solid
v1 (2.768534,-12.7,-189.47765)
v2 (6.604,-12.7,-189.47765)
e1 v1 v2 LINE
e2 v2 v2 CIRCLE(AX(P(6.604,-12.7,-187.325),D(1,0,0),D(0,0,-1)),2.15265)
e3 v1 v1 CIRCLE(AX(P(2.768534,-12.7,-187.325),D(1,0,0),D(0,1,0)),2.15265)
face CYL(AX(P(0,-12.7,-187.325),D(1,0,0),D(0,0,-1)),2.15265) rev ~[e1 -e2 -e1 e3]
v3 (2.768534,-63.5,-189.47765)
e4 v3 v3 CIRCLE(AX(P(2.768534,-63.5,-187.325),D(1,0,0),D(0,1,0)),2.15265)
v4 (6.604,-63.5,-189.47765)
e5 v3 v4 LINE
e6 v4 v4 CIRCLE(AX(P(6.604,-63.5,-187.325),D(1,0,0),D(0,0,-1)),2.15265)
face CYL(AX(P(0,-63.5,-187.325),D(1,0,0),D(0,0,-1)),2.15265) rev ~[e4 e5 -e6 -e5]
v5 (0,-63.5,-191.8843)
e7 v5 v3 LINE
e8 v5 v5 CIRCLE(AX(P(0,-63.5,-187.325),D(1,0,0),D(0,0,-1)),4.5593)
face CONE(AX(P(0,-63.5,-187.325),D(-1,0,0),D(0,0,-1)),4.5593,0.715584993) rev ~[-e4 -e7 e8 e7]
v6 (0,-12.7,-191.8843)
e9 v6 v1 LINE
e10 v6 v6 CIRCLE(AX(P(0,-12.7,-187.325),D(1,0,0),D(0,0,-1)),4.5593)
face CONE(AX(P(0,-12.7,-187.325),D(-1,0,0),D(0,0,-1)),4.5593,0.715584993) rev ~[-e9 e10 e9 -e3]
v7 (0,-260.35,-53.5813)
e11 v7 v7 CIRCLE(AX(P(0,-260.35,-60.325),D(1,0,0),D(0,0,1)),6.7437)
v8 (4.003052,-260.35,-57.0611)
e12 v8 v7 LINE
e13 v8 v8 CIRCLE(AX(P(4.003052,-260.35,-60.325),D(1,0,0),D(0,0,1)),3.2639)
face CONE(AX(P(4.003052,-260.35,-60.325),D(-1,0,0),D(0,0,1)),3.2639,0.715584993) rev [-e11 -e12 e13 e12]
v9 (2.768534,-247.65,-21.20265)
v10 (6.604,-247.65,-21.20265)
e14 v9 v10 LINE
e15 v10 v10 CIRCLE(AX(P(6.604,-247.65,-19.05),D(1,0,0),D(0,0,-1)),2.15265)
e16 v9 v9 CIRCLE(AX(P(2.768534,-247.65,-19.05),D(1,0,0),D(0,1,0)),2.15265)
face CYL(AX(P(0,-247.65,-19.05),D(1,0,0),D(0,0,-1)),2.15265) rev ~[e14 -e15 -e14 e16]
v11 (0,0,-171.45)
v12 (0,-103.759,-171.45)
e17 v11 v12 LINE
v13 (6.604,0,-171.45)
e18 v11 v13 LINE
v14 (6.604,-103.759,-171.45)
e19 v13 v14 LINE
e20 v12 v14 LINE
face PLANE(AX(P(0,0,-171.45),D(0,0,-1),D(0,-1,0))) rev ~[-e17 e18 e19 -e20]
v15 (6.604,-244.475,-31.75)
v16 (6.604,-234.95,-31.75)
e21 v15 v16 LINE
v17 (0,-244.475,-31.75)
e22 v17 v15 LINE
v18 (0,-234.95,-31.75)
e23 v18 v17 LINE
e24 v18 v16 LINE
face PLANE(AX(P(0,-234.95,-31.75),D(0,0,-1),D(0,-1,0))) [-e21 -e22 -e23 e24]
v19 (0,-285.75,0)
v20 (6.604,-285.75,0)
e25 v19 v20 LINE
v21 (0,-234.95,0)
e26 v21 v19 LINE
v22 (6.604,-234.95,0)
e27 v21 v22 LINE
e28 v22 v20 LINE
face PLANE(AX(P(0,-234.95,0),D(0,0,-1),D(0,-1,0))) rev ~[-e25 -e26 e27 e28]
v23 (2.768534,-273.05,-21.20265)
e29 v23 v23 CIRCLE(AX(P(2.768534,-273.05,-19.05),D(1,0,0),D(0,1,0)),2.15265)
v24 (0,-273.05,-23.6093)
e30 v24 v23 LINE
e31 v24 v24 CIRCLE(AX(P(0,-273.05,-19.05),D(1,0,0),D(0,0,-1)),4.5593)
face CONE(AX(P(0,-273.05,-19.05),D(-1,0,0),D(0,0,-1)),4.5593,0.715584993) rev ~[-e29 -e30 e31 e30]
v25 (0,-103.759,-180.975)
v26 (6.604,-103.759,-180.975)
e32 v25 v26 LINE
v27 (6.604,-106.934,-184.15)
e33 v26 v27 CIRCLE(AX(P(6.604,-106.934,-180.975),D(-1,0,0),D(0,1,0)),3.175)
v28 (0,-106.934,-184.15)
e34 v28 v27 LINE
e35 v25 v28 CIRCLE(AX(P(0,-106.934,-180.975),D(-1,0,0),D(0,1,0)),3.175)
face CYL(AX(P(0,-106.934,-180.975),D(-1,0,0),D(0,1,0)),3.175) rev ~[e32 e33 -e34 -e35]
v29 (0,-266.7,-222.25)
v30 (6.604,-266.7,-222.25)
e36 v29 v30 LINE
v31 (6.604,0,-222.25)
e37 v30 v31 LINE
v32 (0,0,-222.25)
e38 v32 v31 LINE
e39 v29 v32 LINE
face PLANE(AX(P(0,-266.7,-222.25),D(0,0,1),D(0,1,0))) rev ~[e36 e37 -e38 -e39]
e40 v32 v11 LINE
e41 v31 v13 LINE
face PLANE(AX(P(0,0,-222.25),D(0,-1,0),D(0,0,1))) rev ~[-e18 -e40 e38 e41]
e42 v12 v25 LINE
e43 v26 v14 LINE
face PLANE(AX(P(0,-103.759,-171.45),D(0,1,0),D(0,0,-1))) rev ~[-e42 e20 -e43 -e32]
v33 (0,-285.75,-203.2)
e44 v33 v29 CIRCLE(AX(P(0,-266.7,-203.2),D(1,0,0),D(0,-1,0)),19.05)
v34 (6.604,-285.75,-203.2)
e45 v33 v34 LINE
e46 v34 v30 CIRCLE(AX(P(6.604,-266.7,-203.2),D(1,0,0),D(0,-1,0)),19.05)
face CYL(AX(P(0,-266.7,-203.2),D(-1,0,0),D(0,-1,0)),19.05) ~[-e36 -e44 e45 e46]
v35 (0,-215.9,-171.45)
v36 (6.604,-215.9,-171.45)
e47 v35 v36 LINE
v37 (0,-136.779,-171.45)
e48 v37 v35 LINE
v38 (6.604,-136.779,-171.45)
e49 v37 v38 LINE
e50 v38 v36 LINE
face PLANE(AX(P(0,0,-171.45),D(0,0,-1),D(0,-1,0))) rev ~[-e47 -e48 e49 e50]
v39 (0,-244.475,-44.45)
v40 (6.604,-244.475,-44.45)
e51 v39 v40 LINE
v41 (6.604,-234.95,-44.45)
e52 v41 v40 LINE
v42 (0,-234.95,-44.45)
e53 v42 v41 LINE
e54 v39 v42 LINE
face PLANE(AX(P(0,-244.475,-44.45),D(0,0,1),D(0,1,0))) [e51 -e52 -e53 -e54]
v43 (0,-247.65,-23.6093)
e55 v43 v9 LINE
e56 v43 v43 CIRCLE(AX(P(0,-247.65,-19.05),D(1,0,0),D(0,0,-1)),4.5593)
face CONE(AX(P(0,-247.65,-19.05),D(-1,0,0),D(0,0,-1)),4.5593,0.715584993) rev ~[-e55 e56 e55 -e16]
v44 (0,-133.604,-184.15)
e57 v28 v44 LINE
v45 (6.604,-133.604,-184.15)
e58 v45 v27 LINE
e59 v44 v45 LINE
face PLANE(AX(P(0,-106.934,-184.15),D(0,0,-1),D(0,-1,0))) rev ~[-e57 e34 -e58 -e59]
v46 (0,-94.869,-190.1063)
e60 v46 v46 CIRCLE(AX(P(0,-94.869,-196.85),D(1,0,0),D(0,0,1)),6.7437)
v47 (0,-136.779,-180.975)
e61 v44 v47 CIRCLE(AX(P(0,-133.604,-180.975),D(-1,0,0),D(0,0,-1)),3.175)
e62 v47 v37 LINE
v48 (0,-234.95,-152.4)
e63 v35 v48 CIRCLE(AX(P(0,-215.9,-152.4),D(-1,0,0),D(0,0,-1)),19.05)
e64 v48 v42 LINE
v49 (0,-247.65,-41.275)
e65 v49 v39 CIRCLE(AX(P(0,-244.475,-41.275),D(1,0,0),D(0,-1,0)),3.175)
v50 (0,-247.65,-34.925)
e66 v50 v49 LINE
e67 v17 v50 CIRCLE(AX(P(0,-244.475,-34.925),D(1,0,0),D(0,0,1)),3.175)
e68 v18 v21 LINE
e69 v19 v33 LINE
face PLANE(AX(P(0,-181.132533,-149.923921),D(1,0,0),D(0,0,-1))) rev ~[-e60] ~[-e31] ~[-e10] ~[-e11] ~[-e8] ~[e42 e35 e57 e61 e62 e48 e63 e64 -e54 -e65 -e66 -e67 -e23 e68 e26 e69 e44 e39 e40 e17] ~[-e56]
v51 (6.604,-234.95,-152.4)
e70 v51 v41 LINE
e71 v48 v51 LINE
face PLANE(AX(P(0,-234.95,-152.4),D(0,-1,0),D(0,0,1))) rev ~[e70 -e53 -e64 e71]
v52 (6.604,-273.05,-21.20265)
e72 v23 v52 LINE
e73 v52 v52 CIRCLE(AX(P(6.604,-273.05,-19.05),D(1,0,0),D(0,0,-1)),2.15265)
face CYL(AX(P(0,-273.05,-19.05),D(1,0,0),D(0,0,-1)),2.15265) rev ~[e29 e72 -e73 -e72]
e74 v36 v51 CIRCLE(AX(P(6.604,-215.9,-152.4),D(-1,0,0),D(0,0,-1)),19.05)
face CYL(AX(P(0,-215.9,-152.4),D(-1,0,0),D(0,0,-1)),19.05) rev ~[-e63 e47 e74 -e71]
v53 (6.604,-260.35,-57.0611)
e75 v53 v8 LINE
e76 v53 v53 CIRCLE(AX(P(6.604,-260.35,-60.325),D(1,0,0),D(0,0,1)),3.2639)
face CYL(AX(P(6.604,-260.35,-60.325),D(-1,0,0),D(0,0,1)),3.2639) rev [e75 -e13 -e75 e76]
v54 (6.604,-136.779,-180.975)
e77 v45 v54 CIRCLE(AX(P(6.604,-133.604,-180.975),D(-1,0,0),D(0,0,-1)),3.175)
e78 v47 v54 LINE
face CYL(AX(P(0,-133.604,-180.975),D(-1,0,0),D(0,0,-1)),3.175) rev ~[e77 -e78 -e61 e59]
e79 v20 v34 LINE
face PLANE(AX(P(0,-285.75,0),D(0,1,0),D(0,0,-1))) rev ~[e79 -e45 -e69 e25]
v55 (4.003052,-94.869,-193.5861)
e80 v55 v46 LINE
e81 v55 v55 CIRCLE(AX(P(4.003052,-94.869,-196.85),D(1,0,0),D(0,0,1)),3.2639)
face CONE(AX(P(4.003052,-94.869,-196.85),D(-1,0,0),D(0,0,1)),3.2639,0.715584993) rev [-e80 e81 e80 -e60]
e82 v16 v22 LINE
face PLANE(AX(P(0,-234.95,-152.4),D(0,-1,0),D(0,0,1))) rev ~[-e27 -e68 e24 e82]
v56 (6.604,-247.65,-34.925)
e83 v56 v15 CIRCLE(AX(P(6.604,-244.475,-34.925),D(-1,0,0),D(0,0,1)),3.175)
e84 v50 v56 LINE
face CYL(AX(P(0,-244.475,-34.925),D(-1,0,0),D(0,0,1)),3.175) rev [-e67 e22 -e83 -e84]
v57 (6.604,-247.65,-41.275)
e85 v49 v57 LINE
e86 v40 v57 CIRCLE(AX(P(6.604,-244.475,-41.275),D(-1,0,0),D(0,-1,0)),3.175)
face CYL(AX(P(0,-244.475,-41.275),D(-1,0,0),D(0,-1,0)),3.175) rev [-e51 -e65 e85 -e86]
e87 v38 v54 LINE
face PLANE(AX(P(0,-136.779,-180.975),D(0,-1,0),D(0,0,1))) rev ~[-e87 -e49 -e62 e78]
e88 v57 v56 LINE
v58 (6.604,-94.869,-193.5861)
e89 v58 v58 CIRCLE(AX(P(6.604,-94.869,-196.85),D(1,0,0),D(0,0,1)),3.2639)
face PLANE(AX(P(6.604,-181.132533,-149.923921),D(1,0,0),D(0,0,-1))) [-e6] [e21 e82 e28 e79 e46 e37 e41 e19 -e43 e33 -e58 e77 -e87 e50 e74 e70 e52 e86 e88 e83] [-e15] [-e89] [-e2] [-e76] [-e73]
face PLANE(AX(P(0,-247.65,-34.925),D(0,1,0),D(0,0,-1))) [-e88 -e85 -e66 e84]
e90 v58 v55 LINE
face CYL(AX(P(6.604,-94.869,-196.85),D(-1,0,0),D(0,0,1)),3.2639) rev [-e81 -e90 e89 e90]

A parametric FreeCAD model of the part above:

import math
import FreeCAD as App
import Part
import Sketcher
Q = App.Units.Quantity

doc = App.newDocument("Part")
body = doc.addObject("PartDesign::Body", "Body")

sketch1 = doc.addObject("Sketcher::SketchObject", "Sketch")
body.addObject(sketch1)
sketch1.AttachmentSupport = (doc.YZ_Plane, [""])
sketch1.MapMode = "FlatFace"
sketch1.addGeometry(Part.LineSegment(App.Vector(-234.95, 0, 0), App.Vector(-285.75, 0, 0)), False)
sketch1.addGeometry(Part.LineSegment(App.Vector(-285.75, 0, 0), App.Vector(-285.75, -203.2, 0)), False)
sketch1.addGeometry(Part.ArcOfCircle(Part.Circle(App.Vector(-266.7, -203.2, 0), App.Vector(0, 0, 1), 19.05), math.radians(180), math.radians(270)), False)
sketch1.addGeometry(Part.LineSegment(App.Vector(-266.7, -222.25, 0), App.Vector(0, -222.25, 0)), False)
sketch1.addGeometry(Part.LineSegment(App.Vector(0, -222.25, 0), App.Vector(0, -171.45, 0)), False)
sketch1.addGeometry(Part.LineSegment(App.Vector(0, -171.45, 0), App.Vector(-215.9, -171.45, 0)), False)
sketch1.addGeometry(Part.ArcOfCircle(Part.Circle(App.Vector(-215.9, -152.4, 0), App.Vector(0, 0, 1), 19.05), math.radians(180), math.radians(270)), False)
sketch1.addGeometry(Part.LineSegment(App.Vector(-234.95, -152.4, 0), App.Vector(-234.95, 0, 0)), False)
sketch1.addConstraint(Sketcher.Constraint("Coincident", 0, 2, 1, 1))
sketch1.addConstraint(Sketcher.Constraint("Tangent", 1, 2, 2, 1))
sketch1.addConstraint(Sketcher.Constraint("Tangent", 2, 2, 3, 1))
sketch1.addConstraint(Sketcher.Constraint("Coincident", 3, 2, 4, 1))
sketch1.addConstraint(Sketcher.Constraint("Coincident", 4, 2, 5, 1))
sketch1.addConstraint(Sketcher.Constraint("Tangent", 5, 2, 6, 2))
sketch1.addConstraint(Sketcher.Constraint("Tangent", 6, 1, 7, 1))
sketch1.addConstraint(Sketcher.Constraint("Coincident", 7, 2, 0, 1))
sketch1.addConstraint(Sketcher.Constraint("Horizontal", 0))
sketch1.addConstraint(Sketcher.Constraint("Vertical", 1))
sketch1.addConstraint(Sketcher.Constraint("Horizontal", 3))
sketch1.addConstraint(Sketcher.Constraint("Vertical", 4))
sketch1.addConstraint(Sketcher.Constraint("Horizontal", 5))
sketch1.addConstraint(Sketcher.Constraint("Vertical", 7))
sketch1.addConstraint(Sketcher.Constraint("Equal", 2, 6))
sketch1.addConstraint(Sketcher.Constraint("PointOnObject", 0, 2, -1))
sketch1.addConstraint(Sketcher.Constraint("PointOnObject", 3, 2, -2))
sketch1.addConstraint(Sketcher.Constraint("Equal", 0, 4))
sketch1.addConstraint(Sketcher.Constraint("DistanceX", 0, 2, 0, 1, Q("2 in")))
sketch1.addConstraint(Sketcher.Constraint("DistanceY", 1, 2, 1, 1, Q("8 in")))
sketch1.addConstraint(Sketcher.Constraint("Radius", 2, Q("0.75 in")))
sketch1.addConstraint(Sketcher.Constraint("DistanceX", 3, 1, 3, 2, Q("10.5 in")))
pad1 = doc.addObject("PartDesign::Pad", "Pad")
body.addObject(pad1)
pad1.Profile = sketch1
pad1.Length = Q("0.26 in")

sketch2 = doc.addObject("Sketcher::SketchObject", "Sketch001")
body.addObject(sketch2)
sketch2.AttachmentSupport = (doc.YZ_Plane, [""])
sketch2.MapMode = "FlatFace"
sketch2.addGeometry(Part.Circle(App.Vector(-12.7, -187.325, 0), App.Vector(0, 0, 1), 2.15265), False)
sketch2.addGeometry(Part.Circle(App.Vector(-63.5, -187.325, 0), App.Vector(0, 0, 1), 2.15265), False)
sketch2.addConstraint(Sketcher.Constraint("Equal", 0, 1))
sketch2.addConstraint(Sketcher.Constraint("Horizontal", 0, 3, 1, 3))
sketch2.addConstraint(Sketcher.Constraint("DistanceX", 1, 3, 0, 3, Q("2 in")))
sketch2.addConstraint(Sketcher.Constraint("Diameter", 0, Q("0.1695 in")))
sketch2.addConstraint(Sketcher.Constraint("DistanceX", 0, 3, -1, 1, Q("0.5 in")))
sketch2.addConstraint(Sketcher.Constraint("DistanceY", 0, 3, -1, 1, Q("7.375 in")))
doc.recompute()
hole = doc.addObject("PartDesign::Hole", "Hole")
body.addObject(hole)
hole.Profile = sketch2
hole.ThreadType = "None"
hole.Diameter = Q("0.1695 in")
hole.DepthType = "ThroughAll"
hole.HoleCutType = "Countersink"
hole.HoleCutDiameter = Q("0.359 in")
hole.HoleCutCountersinkAngle = 82
hole.Reversed = True

sketch3 = doc.addObject("Sketcher::SketchObject", "Sketch002")
body.addObject(sketch3)
sketch3.AttachmentSupport = (doc.YZ_Plane, [""])
sketch3.MapMode = "FlatFace"
sketch3.addGeometry(Part.Circle(App.Vector(-247.65, -19.05, 0), App.Vector(0, 0, 1), 2.15265), False)
sketch3.addGeometry(Part.Circle(App.Vector(-273.05, -19.05, 0), App.Vector(0, 0, 1), 2.15265), False)
sketch3.addConstraint(Sketcher.Constraint("Equal", 0, 1))
sketch3.addConstraint(Sketcher.Constraint("Horizontal", 0, 3, 1, 3))
sketch3.addConstraint(Sketcher.Constraint("DistanceX", 1, 3, 0, 3, Q("1 in")))
sketch3.addConstraint(Sketcher.Constraint("Diameter", 0, Q("0.1695 in")))
sketch3.addConstraint(Sketcher.Constraint("DistanceX", 0, 3, -1, 1, Q("9.75 in")))
sketch3.addConstraint(Sketcher.Constraint("DistanceY", 0, 3, -1, 1, Q("0.75 in")))
doc.recompute()
hole2 = doc.addObject("PartDesign::Hole", "Hole001")
body.addObject(hole2)
hole2.Profile = sketch3
hole2.ThreadType = "None"
hole2.Diameter = Q("0.1695 in")
hole2.DepthType = "ThroughAll"
hole2.HoleCutType = "Countersink"
hole2.HoleCutDiameter = Q("0.359 in")
hole2.HoleCutCountersinkAngle = 82
hole2.Reversed = True

sketch4 = doc.addObject("Sketcher::SketchObject", "Sketch003")
body.addObject(sketch4)
sketch4.AttachmentSupport = (doc.XZ_Plane, [""])
sketch4.MapMode = "FlatFace"
sketch4.AttachmentOffset = App.Placement(App.Vector(0, 0, 3.735 * 25.4), App.Rotation())
sketch4.addGeometry(Part.LineSegment(App.Vector(6.604, -196.85, 0), App.Vector(0, -196.85, 0)), False)
sketch4.addGeometry(Part.LineSegment(App.Vector(0, -196.85, 0), App.Vector(0, -190.1063, 0)), False)
sketch4.addGeometry(Part.LineSegment(App.Vector(0, -190.1063, 0), App.Vector(4.003052, -193.5861, 0)), False)
sketch4.addGeometry(Part.LineSegment(App.Vector(4.003052, -193.5861, 0), App.Vector(6.604, -193.5861, 0)), False)
sketch4.addGeometry(Part.LineSegment(App.Vector(6.604, -193.5861, 0), App.Vector(6.604, -196.85, 0)), False)
sketch4.addGeometry(Part.LineSegment(App.Vector(0, -196.85, 0), App.Vector(6.604, -196.85, 0)), True)
sketch4.addConstraint(Sketcher.Constraint("Coincident", 0, 2, 1, 1))
sketch4.addConstraint(Sketcher.Constraint("Coincident", 1, 2, 2, 1))
sketch4.addConstraint(Sketcher.Constraint("Coincident", 2, 2, 3, 1))
sketch4.addConstraint(Sketcher.Constraint("Coincident", 3, 2, 4, 1))
sketch4.addConstraint(Sketcher.Constraint("Coincident", 4, 2, 0, 1))
sketch4.addConstraint(Sketcher.Constraint("Horizontal", 0))
sketch4.addConstraint(Sketcher.Constraint("Vertical", 1))
sketch4.addConstraint(Sketcher.Constraint("Horizontal", 3))
sketch4.addConstraint(Sketcher.Constraint("Vertical", 4))
sketch4.addConstraint(Sketcher.Constraint("Horizontal", 5))
sketch4.addConstraint(Sketcher.Constraint("Coincident", 5, 1, 0, 2))
sketch4.addConstraint(Sketcher.Constraint("PointOnObject", 0, 2, -2))
sketch4.addConstraint(Sketcher.Constraint("Vertical", 3, 2, 5, 2))
sketch4.addConstraint(Sketcher.Constraint("Angle", 2, Q("-41 deg")))
sketch4.addConstraint(Sketcher.Constraint("DistanceX", 0, 2, 0, 1, Q("0.26 in")))
sketch4.addConstraint(Sketcher.Constraint("DistanceY", 0, 2, -1, 1, Q("7.75 in")))
sketch4.addConstraint(Sketcher.Constraint("DistanceY", 1, 1, 1, 2, Q("0.2655 in")))
sketch4.addConstraint(Sketcher.Constraint("DistanceY", 4, 2, 4, 1, Q("0.1285 in")))
groove = doc.addObject("PartDesign::Groove", "Groove")
body.addObject(groove)
groove.Profile = sketch4
groove.ReferenceAxis = (sketch4, ["Axis0"])
groove.Angle = 360
doc.recompute()

datumline = doc.addObject("PartDesign::Line", "DatumLine")
body.addObject(datumline)
datumline.Placement = App.Placement(App.Vector(0, 0, 0), App.Rotation(App.Vector(0, 0, 1), App.Vector(0, -0.771366013, 0.636391761)))
linearpattern = doc.addObject("PartDesign::LinearPattern", "LinearPattern")
body.addObject(linearpattern)
linearpattern.Originals = [groove]
linearpattern.Direction = (datumline, [""])
linearpattern.Mode = "offset"
linearpattern.Offset = 214.529804
linearpattern.Occurrences = 2
body.Tip = linearpattern

sketch5 = doc.addObject("Sketcher::SketchObject", "Sketch004")
body.addObject(sketch5)
sketch5.AttachmentSupport = (doc.YZ_Plane, [""])
sketch5.MapMode = "FlatFace"
sketch5.addGeometry(Part.LineSegment(App.Vector(-103.759, -171.45, 0), App.Vector(-103.759, -180.975, 0)), False)
sketch5.addGeometry(Part.ArcOfCircle(Part.Circle(App.Vector(-106.934, -180.975, 0), App.Vector(0, 0, 1), 3.175), math.radians(-90), math.radians(0)), False)
sketch5.addGeometry(Part.LineSegment(App.Vector(-106.934, -184.15, 0), App.Vector(-133.604, -184.15, 0)), False)
sketch5.addGeometry(Part.ArcOfCircle(Part.Circle(App.Vector(-133.604, -180.975, 0), App.Vector(0, 0, 1), 3.175), math.radians(-180), math.radians(-90)), False)
sketch5.addGeometry(Part.LineSegment(App.Vector(-136.779, -180.975, 0), App.Vector(-136.779, -171.45, 0)), False)
sketch5.addGeometry(Part.LineSegment(App.Vector(-136.779, -171.45, 0), App.Vector(-103.759, -171.45, 0)), False)
sketch5.addGeometry(Part.LineSegment(App.Vector(-234.95, -31.75, 0), App.Vector(-234.95, -44.45, 0)), False)
sketch5.addGeometry(Part.LineSegment(App.Vector(-234.95, -44.45, 0), App.Vector(-244.475, -44.45, 0)), False)
sketch5.addGeometry(Part.ArcOfCircle(Part.Circle(App.Vector(-244.475, -41.275, 0), App.Vector(0, 0, 1), 3.175), math.radians(-180), math.radians(-90)), False)
sketch5.addGeometry(Part.LineSegment(App.Vector(-247.65, -41.275, 0), App.Vector(-247.65, -34.925, 0)), False)
sketch5.addGeometry(Part.ArcOfCircle(Part.Circle(App.Vector(-244.475, -34.925, 0), App.Vector(0, 0, 1), 3.175), math.radians(90), math.radians(180)), False)
sketch5.addGeometry(Part.LineSegment(App.Vector(-244.475, -31.75, 0), App.Vector(-234.95, -31.75, 0)), False)
sketch5.addConstraint(Sketcher.Constraint("Tangent", 0, 2, 1, 2))
sketch5.addConstraint(Sketcher.Constraint("Tangent", 1, 1, 2, 1))
sketch5.addConstraint(Sketcher.Constraint("Tangent", 2, 2, 3, 2))
sketch5.addConstraint(Sketcher.Constraint("Tangent", 3, 1, 4, 1))
sketch5.addConstraint(Sketcher.Constraint("Coincident", 4, 2, 5, 1))
sketch5.addConstraint(Sketcher.Constraint("Coincident", 5, 2, 0, 1))
sketch5.addConstraint(Sketcher.Constraint("Coincident", 6, 2, 7, 1))
sketch5.addConstraint(Sketcher.Constraint("Tangent", 7, 2, 8, 2))
sketch5.addConstraint(Sketcher.Constraint("Tangent", 8, 1, 9, 1))
sketch5.addConstraint(Sketcher.Constraint("Tangent", 9, 2, 10, 2))
sketch5.addConstraint(Sketcher.Constraint("Tangent", 10, 1, 11, 1))
sketch5.addConstraint(Sketcher.Constraint("Coincident", 11, 2, 6, 1))
sketch5.addConstraint(Sketcher.Constraint("Vertical", 0))
sketch5.addConstraint(Sketcher.Constraint("Horizontal", 2))
sketch5.addConstraint(Sketcher.Constraint("Vertical", 4))
sketch5.addConstraint(Sketcher.Constraint("Horizontal", 5))
sketch5.addConstraint(Sketcher.Constraint("Vertical", 6))
sketch5.addConstraint(Sketcher.Constraint("Horizontal", 7))
sketch5.addConstraint(Sketcher.Constraint("Vertical", 9))
sketch5.addConstraint(Sketcher.Constraint("Horizontal", 11))
sketch5.addConstraint(Sketcher.Constraint("Equal", 1, 3))
sketch5.addConstraint(Sketcher.Constraint("Equal", 3, 8))
sketch5.addConstraint(Sketcher.Constraint("Equal", 8, 10))
sketch5.addConstraint(Sketcher.Constraint("Equal", 11, 0))
sketch5.addConstraint(Sketcher.Constraint("DistanceX", 5, 1, 5, 2, Q("1.3 in")))
sketch5.addConstraint(Sketcher.Constraint("DistanceY", 6, 2, 6, 1, Q("0.5 in")))
sketch5.addConstraint(Sketcher.Constraint("Radius", 1, Q("0.125 in")))
sketch5.addConstraint(Sketcher.Constraint("DistanceY", 4, 2, 6, 2, Q("5 in")))
sketch5.addConstraint(Sketcher.Constraint("DistanceY", 3, 3, 8, 3, Q("5.5 in")))
sketch5.addConstraint(Sketcher.Constraint("DistanceX", 1, 3, -1, 1, Q("4.21 in")))
sketch5.addConstraint(Sketcher.Constraint("DistanceY", 1, 1, -1, 1, Q("7.25 in")))
sketch5.addConstraint(Sketcher.Constraint("DistanceX", 6, 2, -1, 1, Q("9.25 in")))
pocket1 = doc.addObject("PartDesign::Pocket", "Pocket")
body.addObject(pocket1)
pocket1.Profile = sketch5
pocket1.Type = "ThroughAll"
pocket1.Reversed = True

doc.recompute()
